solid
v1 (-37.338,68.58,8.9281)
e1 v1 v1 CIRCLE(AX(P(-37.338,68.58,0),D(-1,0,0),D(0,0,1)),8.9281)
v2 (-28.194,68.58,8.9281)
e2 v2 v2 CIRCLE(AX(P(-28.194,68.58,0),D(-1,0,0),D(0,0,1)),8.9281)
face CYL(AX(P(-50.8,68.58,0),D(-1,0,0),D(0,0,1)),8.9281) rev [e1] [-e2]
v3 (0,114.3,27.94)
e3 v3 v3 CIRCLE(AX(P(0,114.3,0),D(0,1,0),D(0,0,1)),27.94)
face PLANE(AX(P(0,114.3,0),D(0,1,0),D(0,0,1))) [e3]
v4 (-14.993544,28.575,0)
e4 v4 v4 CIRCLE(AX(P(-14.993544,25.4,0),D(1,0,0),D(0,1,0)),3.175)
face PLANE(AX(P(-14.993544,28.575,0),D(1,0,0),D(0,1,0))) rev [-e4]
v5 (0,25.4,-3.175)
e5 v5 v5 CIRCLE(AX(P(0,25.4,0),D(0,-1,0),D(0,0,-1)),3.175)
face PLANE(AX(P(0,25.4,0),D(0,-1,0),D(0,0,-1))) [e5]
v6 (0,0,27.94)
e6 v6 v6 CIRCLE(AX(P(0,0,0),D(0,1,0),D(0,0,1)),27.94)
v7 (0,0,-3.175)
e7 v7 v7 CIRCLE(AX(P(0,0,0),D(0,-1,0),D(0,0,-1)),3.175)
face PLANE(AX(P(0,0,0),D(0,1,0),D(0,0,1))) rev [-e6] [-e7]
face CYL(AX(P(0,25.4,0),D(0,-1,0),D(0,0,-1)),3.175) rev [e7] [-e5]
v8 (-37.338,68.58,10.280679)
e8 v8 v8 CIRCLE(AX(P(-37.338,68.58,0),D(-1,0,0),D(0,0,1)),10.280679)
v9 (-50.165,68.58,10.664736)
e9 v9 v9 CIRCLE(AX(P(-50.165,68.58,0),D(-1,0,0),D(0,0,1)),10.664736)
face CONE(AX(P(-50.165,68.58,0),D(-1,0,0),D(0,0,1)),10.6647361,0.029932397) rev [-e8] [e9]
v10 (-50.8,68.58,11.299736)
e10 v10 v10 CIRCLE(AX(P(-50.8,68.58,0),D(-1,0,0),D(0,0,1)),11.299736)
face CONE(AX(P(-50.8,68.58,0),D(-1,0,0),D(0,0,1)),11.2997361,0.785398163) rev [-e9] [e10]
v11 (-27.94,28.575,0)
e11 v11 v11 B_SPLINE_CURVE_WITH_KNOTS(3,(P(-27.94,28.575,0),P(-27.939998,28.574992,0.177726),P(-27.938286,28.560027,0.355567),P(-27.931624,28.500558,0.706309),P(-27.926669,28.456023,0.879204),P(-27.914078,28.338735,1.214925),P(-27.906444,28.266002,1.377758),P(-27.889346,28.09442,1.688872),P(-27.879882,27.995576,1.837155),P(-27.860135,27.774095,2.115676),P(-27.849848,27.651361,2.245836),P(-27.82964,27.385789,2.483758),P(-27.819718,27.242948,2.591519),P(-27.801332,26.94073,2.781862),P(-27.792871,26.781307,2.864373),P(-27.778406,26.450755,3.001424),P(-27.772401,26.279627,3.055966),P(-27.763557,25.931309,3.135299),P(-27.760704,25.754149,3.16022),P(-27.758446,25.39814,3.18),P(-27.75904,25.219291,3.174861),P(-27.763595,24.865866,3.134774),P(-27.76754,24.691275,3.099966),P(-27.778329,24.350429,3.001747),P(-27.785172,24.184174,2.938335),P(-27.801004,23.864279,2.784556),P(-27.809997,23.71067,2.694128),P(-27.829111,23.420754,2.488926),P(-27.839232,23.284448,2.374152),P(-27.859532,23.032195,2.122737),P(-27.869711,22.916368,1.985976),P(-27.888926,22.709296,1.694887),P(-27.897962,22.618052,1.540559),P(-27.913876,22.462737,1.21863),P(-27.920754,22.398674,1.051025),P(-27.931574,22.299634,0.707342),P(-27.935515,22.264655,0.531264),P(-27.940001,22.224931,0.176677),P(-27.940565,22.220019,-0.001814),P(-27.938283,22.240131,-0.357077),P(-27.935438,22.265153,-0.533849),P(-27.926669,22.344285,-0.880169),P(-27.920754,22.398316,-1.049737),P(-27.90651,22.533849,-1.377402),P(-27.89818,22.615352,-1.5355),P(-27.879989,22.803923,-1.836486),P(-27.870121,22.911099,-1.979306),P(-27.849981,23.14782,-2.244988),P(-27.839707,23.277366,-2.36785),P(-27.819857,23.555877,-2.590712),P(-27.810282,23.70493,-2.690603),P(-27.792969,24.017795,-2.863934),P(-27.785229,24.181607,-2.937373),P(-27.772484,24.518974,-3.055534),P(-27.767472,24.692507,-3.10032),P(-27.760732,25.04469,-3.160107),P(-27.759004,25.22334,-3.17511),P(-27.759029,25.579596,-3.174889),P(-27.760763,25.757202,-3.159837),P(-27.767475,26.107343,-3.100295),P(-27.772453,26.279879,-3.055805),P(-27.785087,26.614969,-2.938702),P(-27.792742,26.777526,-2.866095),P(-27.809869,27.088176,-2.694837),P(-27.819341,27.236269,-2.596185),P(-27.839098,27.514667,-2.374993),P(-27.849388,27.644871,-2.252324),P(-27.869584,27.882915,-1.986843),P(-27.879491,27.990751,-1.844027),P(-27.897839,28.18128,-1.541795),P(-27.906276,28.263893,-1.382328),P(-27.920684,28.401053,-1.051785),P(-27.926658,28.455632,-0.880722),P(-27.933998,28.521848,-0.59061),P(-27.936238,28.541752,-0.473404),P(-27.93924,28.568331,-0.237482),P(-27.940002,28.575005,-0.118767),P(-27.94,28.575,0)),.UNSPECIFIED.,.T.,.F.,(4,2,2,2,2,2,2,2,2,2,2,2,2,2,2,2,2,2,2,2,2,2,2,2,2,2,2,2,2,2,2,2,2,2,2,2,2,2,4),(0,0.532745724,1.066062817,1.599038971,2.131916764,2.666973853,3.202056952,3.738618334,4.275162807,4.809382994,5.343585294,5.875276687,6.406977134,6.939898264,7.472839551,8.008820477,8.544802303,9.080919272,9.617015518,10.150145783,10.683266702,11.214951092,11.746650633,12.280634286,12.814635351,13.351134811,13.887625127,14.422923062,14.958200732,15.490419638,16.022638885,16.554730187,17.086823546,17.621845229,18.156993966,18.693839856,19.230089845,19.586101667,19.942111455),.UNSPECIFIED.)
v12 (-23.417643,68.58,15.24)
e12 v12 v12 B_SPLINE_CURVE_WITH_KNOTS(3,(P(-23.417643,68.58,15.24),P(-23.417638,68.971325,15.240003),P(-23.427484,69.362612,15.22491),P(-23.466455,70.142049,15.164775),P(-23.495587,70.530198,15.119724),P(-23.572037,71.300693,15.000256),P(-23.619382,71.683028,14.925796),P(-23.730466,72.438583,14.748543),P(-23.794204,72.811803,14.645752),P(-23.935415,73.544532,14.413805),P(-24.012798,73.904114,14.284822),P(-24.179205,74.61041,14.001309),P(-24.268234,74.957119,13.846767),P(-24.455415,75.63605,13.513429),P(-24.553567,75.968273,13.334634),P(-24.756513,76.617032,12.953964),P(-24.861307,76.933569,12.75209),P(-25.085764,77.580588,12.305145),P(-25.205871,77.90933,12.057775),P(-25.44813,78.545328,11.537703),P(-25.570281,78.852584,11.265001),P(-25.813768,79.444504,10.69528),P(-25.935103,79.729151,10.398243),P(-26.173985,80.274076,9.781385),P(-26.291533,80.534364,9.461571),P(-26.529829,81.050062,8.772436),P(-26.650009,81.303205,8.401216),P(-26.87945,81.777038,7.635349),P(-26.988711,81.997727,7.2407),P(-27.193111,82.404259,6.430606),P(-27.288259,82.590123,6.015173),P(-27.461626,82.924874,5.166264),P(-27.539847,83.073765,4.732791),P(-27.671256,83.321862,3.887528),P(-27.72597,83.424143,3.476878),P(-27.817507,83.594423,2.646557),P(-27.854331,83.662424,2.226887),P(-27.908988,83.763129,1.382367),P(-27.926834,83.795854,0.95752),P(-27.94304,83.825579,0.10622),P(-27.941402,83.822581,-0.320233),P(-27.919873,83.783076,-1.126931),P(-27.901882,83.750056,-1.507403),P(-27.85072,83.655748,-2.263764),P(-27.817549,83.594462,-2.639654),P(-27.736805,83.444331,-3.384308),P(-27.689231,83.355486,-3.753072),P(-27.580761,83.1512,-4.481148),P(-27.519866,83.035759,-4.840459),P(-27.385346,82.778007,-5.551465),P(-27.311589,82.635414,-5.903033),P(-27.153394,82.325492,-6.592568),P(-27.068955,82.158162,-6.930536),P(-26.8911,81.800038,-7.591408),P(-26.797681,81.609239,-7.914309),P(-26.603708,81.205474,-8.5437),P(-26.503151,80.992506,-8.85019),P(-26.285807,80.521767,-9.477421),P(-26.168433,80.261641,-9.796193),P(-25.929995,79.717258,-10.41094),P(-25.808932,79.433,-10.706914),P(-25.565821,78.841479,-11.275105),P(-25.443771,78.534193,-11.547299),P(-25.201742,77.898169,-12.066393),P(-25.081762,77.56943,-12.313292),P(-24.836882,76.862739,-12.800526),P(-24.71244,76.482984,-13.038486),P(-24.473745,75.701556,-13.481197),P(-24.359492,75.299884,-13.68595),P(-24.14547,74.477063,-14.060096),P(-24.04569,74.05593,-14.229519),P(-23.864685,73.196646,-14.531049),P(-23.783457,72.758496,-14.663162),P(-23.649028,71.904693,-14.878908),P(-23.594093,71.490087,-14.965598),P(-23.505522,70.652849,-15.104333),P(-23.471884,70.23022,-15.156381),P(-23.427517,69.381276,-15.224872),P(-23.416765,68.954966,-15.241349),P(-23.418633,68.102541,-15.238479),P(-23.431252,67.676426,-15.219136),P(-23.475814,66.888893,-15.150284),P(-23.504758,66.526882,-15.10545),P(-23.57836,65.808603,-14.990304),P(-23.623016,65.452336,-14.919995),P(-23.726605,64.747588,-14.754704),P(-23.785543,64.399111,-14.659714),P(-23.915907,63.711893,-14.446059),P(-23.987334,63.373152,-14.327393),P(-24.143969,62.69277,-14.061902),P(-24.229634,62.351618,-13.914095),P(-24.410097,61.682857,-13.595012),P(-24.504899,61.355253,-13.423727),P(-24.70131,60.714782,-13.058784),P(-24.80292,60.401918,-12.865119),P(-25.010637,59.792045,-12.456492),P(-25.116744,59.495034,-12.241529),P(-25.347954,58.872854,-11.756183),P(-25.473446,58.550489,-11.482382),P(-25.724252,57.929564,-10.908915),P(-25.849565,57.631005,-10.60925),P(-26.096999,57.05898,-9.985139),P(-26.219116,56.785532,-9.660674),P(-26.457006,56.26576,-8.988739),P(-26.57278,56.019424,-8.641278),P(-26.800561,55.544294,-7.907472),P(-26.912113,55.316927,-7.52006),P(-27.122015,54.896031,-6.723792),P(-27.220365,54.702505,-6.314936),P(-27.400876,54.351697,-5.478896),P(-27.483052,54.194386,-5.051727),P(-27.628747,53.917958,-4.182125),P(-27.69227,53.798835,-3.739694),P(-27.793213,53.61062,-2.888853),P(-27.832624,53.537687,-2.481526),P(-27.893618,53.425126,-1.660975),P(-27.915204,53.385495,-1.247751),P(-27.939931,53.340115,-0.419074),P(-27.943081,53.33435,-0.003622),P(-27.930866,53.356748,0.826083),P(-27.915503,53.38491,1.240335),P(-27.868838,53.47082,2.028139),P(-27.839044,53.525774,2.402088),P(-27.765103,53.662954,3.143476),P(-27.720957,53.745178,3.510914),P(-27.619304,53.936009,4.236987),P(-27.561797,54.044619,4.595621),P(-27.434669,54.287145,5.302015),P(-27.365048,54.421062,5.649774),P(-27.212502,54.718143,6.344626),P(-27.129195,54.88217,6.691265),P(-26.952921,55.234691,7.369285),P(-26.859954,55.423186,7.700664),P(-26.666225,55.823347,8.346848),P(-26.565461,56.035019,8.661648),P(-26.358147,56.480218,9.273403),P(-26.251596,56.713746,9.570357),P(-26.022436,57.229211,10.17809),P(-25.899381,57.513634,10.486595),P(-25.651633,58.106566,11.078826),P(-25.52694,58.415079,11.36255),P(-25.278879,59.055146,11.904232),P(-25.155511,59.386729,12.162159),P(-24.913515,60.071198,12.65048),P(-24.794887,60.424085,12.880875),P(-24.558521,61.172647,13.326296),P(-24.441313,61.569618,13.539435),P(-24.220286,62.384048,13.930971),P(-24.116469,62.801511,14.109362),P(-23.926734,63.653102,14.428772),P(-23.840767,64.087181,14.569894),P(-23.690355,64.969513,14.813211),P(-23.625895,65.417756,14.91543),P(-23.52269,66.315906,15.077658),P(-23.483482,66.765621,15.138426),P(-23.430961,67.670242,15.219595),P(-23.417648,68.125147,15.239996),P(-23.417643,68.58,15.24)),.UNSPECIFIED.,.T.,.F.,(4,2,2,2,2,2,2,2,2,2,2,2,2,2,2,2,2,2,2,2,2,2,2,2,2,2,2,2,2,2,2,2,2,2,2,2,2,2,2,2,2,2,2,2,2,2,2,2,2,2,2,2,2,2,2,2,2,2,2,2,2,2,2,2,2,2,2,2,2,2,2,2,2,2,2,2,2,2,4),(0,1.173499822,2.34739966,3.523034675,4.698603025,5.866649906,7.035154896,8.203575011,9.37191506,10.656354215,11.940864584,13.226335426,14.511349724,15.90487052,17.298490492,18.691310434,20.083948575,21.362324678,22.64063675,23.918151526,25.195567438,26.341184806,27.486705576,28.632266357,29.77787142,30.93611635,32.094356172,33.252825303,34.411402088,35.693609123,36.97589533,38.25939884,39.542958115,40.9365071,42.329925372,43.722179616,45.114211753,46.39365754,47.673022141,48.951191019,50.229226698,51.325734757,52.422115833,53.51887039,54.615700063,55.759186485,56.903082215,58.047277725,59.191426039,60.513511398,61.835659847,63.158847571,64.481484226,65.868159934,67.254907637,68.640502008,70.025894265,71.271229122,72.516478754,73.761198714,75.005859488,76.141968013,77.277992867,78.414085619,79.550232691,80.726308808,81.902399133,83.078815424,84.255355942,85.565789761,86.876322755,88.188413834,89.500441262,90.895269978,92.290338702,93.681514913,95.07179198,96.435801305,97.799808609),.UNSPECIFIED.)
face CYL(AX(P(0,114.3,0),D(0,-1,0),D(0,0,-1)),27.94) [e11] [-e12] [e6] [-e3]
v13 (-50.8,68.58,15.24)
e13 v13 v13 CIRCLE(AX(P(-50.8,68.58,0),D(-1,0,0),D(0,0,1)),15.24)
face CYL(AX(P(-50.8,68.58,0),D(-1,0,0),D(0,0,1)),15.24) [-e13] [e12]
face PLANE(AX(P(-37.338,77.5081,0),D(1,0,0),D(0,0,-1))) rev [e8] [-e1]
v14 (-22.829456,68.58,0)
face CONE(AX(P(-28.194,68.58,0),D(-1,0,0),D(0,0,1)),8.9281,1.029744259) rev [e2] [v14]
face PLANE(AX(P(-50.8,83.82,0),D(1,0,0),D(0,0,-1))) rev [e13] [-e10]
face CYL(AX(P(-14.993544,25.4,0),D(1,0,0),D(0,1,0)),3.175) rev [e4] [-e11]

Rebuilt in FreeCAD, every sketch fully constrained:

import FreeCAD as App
import Part
import Sketcher
Q = App.Units.Quantity

doc = App.newDocument("Part")
params = doc.addObject("Spreadsheet::Sheet", "Params")
for row, (alias, value) in enumerate([
    ("sketch1_diameter", "2.2 in"),
    ("pad1_length", "4.5 in"),
    ("sketch2_height", "0.125 in"),
    ("groove_angle", "360 deg"),
    ("sketch3_diameter", "0.25 in"),
    ("pocket1_length", "1 in"),
    ("sketch4_width", "2 in"),
    ("sketch4_height", "0.6 in"),
    ("revolution_angle", "360 deg"),
    ("sketch5_width", "0.36 in"),
    ("groove2_angle", "360 deg"),
], start=1):
    params.set(f"A{row}", alias)
    params.set(f"B{row}", "=" + value)
    params.setAlias(f"B{row}", alias)

body = doc.addObject("PartDesign::Body", "Body")

# Sketch on XZ plane
sketch1 = body.newObject("Sketcher::SketchObject", "Sketch")
sketch1.AttachmentSupport = (doc.getObject("XZ_Plane"), [""])
sketch1.MapMode = "FlatFace"
sketch1.addGeometry(Part.Circle(App.Vector(0, 0, 0), App.Vector(0, 0, 1), 28), False)
sketch1.addConstraint(Sketcher.Constraint("Coincident", 0, 3, -1, 1))
sketch1.addConstraint(Sketcher.Constraint("Diameter", 0, Q("2.2 in")))
sketch1.setExpression("Constraints[1]", "Params.sketch1_diameter")
pad1 = body.newObject("PartDesign::Pad", "Pad")
pad1.Profile = sketch1
pad1.setExpression("Length", "Params.pad1_length")
pad1.Reversed = True

# Sketch on XY plane
sketch2 = body.newObject("Sketcher::SketchObject", "Sketch001")
sketch2.AttachmentSupport = (doc.getObject("XY_Plane"), [""])
sketch2.MapMode = "FlatFace"
sketch2.addGeometry(Part.LineSegment(App.Vector(-43.6, 28.6, 0), App.Vector(-43.6, 25.4, 0)), False)
sketch2.addGeometry(Part.LineSegment(App.Vector(-43.6, 25.4, 0), App.Vector(-15, 25.4, 0)), False)
sketch2.addGeometry(Part.LineSegment(App.Vector(-15, 25.4, 0), App.Vector(-15, 28.6, 0)), False)
sketch2.addGeometry(Part.LineSegment(App.Vector(-15, 28.6, 0), App.Vector(-43.6, 28.6, 0)), False)
sketch2.addGeometry(Part.LineSegment(App.Vector(-15, 25.4, 0), App.Vector(-43.6, 25.4, 0)), True)  # axis
sketch2.addConstraint(Sketcher.Constraint("Coincident", 0, 2, 1, 1))
sketch2.addConstraint(Sketcher.Constraint("Coincident", 1, 2, 2, 1))
sketch2.addConstraint(Sketcher.Constraint("Coincident", 2, 2, 3, 1))
sketch2.addConstraint(Sketcher.Constraint("Coincident", 3, 2, 0, 1))
sketch2.addConstraint(Sketcher.Constraint("Vertical", 0))
sketch2.addConstraint(Sketcher.Constraint("Horizontal", 1))
sketch2.addConstraint(Sketcher.Constraint("Vertical", 2))
sketch2.addConstraint(Sketcher.Constraint("Horizontal", 3))
sketch2.addConstraint(Sketcher.Constraint("Horizontal", 4))
sketch2.addConstraint(Sketcher.Constraint("Coincident", 4, 1, 1, 2))
sketch2.addConstraint(Sketcher.Constraint("Vertical", 3, 2, 4, 2))
sketch2.addConstraint(Sketcher.Constraint("DistanceY", -1, 1, 0, 2, Q("1 in")))
sketch2.addConstraint(Sketcher.Constraint("DistanceY", 0, 2, 0, 1, Q("0.125 in")))
sketch2.addConstraint(Sketcher.Constraint("DistanceX", 1, 1, 1, 2, Q("28.651029 mm")))
sketch2.addConstraint(Sketcher.Constraint("DistanceX", 0, 2, -1, 1, Q("43.644573 mm")))
sketch2.setExpression("Constraints[12]", "Params.sketch2_height")
groove = body.newObject("PartDesign::Groove", "Groove")
groove.Profile = sketch2
groove.ReferenceAxis = (sketch2, ["Axis0"])
groove.setExpression("Angle", "Params.groove_angle")

# Sketch on XZ plane
sketch3 = body.newObject("Sketcher::SketchObject", "Sketch002")
sketch3.AttachmentSupport = (doc.getObject("XZ_Plane"), [""])
sketch3.MapMode = "FlatFace"
sketch3.addGeometry(Part.Circle(App.Vector(0, 0, 0), App.Vector(0, 0, 1), 3.2), False)
sketch3.addConstraint(Sketcher.Constraint("Coincident", 0, 3, -1, 1))
sketch3.addConstraint(Sketcher.Constraint("Diameter", 0, Q("0.25 in")))
sketch3.setExpression("Constraints[1]", "Params.sketch3_diameter")
pocket1 = body.newObject("PartDesign::Pocket", "Pocket")
pocket1.Profile = sketch3
pocket1.setExpression("Length", "Params.pocket1_length")

# Sketch on XY plane
sketch4 = body.newObject("Sketcher::SketchObject", "Sketch003")
sketch4.AttachmentSupport = (doc.getObject("XY_Plane"), [""])
sketch4.MapMode = "FlatFace"
sketch4.addGeometry(Part.LineSegment(App.Vector(-51, 84, 0), App.Vector(-51, 69, 0)), False)
sketch4.addGeometry(Part.LineSegment(App.Vector(-51, 69, 0), App.Vector(0, 69, 0)), False)
sketch4.addGeometry(Part.LineSegment(App.Vector(0, 69, 0), App.Vector(0, 84, 0)), False)
sketch4.addGeometry(Part.LineSegment(App.Vector(0, 84, 0), App.Vector(-51, 84, 0)), False)
sketch4.addGeometry(Part.LineSegment(App.Vector(-51, 69, 0), App.Vector(0, 69, 0)), True)  # axis
sketch4.addConstraint(Sketcher.Constraint("Coincident", 0, 2, 1, 1))
sketch4.addConstraint(Sketcher.Constraint("Coincident", 1, 2, 2, 1))
sketch4.addConstraint(Sketcher.Constraint("Coincident", 2, 2, 3, 1))
sketch4.addConstraint(Sketcher.Constraint("Coincident", 3, 2, 0, 1))
sketch4.addConstraint(Sketcher.Constraint("Vertical", 0))
sketch4.addConstraint(Sketcher.Constraint("Horizontal", 1))
sketch4.addConstraint(Sketcher.Constraint("Vertical", 2))
sketch4.addConstraint(Sketcher.Constraint("Horizontal", 3))
sketch4.addConstraint(Sketcher.Constraint("Horizontal", 4))
sketch4.addConstraint(Sketcher.Constraint("Coincident", 4, 1, 0, 2))
sketch4.addConstraint(Sketcher.Constraint("PointOnObject", 1, 2, -2))
sketch4.addConstraint(Sketcher.Constraint("PointOnObject", 4, 2, -2))
sketch4.addConstraint(Sketcher.Constraint("DistanceX", 1, 1, 1, 2, Q("2 in")))
sketch4.addConstraint(Sketcher.Constraint("DistanceY", 0, 2, 0, 1, Q("0.6 in")))
sketch4.addConstraint(Sketcher.Constraint("DistanceY", -1, 1, 0, 2, Q("2.7 in")))
sketch4.setExpression("Constraints[12]", "Params.sketch4_width")
sketch4.setExpression("Constraints[13]", "Params.sketch4_height")
revolution = body.newObject("PartDesign::Revolution", "Revolution")
revolution.Profile = sketch4
revolution.ReferenceAxis = (sketch4, ["Axis0"])
revolution.setExpression("Angle", "Params.revolution_angle")

# Sketch on XZ plane
sketch5 = body.newObject("Sketcher::SketchObject", "Sketch004")
sketch5.AttachmentSupport = (doc.getObject("XZ_Plane"), [""])
sketch5.MapMode = "FlatFace"
sketch5.AttachmentOffset = App.Placement(App.Vector(0, 0, -2.7 * 25.4), App.Rotation())
sketch5.addGeometry(Part.LineSegment(App.Vector(-22.8, 0, 0), App.Vector(-50.8, 0, 0)), False)
sketch5.addGeometry(Part.LineSegment(App.Vector(-50.8, 0, 0), App.Vector(-50.8, 11.3, 0)), False)
sketch5.addGeometry(Part.LineSegment(App.Vector(-50.8, 11.3, 0), App.Vector(-50.2, 10.7, 0)), False)
sketch5.addGeometry(Part.LineSegment(App.Vector(-50.2, 10.7, 0), App.Vector(-37.3, 10.3, 0)), False)
sketch5.addGeometry(Part.LineSegment(App.Vector(-37.3, 10.3, 0), App.Vector(-37.3, 8.9, 0)), False)
sketch5.addGeometry(Part.LineSegment(App.Vector(-37.3, 8.9, 0), App.Vector(-28.2, 8.9, 0)), False)
sketch5.addGeometry(Part.LineSegment(App.Vector(-28.2, 8.9, 0), App.Vector(-22.8, 0, 0)), False)
sketch5.addConstraint(Sketcher.Constraint("Coincident", 0, 2, 1, 1))
sketch5.addConstraint(Sketcher.Constraint("Coincident", 1, 2, 2, 1))
sketch5.addConstraint(Sketcher.Constraint("Coincident", 2, 2, 3, 1))
sketch5.addConstraint(Sketcher.Constraint("Coincident", 3, 2, 4, 1))
sketch5.addConstraint(Sketcher.Constraint("Coincident", 4, 2, 5, 1))
sketch5.addConstraint(Sketcher.Constraint("Coincident", 5, 2, 6, 1))
sketch5.addConstraint(Sketcher.Constraint("Coincident", 6, 2, 0, 1))
sketch5.addConstraint(Sketcher.Constraint("Horizontal", 0))
sketch5.addConstraint(Sketcher.Constraint("Vertical", 1))
sketch5.addConstraint(Sketcher.Constraint("Vertical", 4))
sketch5.addConstraint(Sketcher.Constraint("Horizontal", 5))
sketch5.addConstraint(Sketcher.Constraint("PointOnObject", 0, 2, -1))
sketch5.addConstraint(Sketcher.Constraint("DistanceX", 0, 2, -1, 1, Q("2 in")))
sketch5.addConstraint(Sketcher.Constraint("Angle", 2, Q("-45 deg")))
sketch5.addConstraint(Sketcher.Constraint("Angle", 6, Q("-59 deg")))
sketch5.addConstraint(Sketcher.Constraint("DistanceX", 5, 1, 5, 2, Q("0.36 in")))
sketch5.addConstraint(Sketcher.Constraint("DistanceX", 3, 2, -1, 1, Q("1.47 in")))
sketch5.addConstraint(Sketcher.Constraint("DistanceX", 2, 2, -1, 1, Q("1.975 in")))
sketch5.addConstraint(Sketcher.Constraint("DistanceY", -1, 1, 4, 2, Q("0.3515 in")))
sketch5.addConstraint(Sketcher.Constraint("DistanceY", 4, 2, 4, 1, Q("1.352579 mm")))
sketch5.addConstraint(Sketcher.Constraint("Distance", 3, Q("12.832748 mm")))
sketch5.setExpression("Constraints[15]", "Params.sketch5_width")
groove2 = body.newObject("PartDesign::Groove", "Groove001")
groove2.Profile = sketch5
groove2.ReferenceAxis = (sketch5, ["H_Axis"])
groove2.setExpression("Angle", "Params.groove2_angle")

doc.recompute()
